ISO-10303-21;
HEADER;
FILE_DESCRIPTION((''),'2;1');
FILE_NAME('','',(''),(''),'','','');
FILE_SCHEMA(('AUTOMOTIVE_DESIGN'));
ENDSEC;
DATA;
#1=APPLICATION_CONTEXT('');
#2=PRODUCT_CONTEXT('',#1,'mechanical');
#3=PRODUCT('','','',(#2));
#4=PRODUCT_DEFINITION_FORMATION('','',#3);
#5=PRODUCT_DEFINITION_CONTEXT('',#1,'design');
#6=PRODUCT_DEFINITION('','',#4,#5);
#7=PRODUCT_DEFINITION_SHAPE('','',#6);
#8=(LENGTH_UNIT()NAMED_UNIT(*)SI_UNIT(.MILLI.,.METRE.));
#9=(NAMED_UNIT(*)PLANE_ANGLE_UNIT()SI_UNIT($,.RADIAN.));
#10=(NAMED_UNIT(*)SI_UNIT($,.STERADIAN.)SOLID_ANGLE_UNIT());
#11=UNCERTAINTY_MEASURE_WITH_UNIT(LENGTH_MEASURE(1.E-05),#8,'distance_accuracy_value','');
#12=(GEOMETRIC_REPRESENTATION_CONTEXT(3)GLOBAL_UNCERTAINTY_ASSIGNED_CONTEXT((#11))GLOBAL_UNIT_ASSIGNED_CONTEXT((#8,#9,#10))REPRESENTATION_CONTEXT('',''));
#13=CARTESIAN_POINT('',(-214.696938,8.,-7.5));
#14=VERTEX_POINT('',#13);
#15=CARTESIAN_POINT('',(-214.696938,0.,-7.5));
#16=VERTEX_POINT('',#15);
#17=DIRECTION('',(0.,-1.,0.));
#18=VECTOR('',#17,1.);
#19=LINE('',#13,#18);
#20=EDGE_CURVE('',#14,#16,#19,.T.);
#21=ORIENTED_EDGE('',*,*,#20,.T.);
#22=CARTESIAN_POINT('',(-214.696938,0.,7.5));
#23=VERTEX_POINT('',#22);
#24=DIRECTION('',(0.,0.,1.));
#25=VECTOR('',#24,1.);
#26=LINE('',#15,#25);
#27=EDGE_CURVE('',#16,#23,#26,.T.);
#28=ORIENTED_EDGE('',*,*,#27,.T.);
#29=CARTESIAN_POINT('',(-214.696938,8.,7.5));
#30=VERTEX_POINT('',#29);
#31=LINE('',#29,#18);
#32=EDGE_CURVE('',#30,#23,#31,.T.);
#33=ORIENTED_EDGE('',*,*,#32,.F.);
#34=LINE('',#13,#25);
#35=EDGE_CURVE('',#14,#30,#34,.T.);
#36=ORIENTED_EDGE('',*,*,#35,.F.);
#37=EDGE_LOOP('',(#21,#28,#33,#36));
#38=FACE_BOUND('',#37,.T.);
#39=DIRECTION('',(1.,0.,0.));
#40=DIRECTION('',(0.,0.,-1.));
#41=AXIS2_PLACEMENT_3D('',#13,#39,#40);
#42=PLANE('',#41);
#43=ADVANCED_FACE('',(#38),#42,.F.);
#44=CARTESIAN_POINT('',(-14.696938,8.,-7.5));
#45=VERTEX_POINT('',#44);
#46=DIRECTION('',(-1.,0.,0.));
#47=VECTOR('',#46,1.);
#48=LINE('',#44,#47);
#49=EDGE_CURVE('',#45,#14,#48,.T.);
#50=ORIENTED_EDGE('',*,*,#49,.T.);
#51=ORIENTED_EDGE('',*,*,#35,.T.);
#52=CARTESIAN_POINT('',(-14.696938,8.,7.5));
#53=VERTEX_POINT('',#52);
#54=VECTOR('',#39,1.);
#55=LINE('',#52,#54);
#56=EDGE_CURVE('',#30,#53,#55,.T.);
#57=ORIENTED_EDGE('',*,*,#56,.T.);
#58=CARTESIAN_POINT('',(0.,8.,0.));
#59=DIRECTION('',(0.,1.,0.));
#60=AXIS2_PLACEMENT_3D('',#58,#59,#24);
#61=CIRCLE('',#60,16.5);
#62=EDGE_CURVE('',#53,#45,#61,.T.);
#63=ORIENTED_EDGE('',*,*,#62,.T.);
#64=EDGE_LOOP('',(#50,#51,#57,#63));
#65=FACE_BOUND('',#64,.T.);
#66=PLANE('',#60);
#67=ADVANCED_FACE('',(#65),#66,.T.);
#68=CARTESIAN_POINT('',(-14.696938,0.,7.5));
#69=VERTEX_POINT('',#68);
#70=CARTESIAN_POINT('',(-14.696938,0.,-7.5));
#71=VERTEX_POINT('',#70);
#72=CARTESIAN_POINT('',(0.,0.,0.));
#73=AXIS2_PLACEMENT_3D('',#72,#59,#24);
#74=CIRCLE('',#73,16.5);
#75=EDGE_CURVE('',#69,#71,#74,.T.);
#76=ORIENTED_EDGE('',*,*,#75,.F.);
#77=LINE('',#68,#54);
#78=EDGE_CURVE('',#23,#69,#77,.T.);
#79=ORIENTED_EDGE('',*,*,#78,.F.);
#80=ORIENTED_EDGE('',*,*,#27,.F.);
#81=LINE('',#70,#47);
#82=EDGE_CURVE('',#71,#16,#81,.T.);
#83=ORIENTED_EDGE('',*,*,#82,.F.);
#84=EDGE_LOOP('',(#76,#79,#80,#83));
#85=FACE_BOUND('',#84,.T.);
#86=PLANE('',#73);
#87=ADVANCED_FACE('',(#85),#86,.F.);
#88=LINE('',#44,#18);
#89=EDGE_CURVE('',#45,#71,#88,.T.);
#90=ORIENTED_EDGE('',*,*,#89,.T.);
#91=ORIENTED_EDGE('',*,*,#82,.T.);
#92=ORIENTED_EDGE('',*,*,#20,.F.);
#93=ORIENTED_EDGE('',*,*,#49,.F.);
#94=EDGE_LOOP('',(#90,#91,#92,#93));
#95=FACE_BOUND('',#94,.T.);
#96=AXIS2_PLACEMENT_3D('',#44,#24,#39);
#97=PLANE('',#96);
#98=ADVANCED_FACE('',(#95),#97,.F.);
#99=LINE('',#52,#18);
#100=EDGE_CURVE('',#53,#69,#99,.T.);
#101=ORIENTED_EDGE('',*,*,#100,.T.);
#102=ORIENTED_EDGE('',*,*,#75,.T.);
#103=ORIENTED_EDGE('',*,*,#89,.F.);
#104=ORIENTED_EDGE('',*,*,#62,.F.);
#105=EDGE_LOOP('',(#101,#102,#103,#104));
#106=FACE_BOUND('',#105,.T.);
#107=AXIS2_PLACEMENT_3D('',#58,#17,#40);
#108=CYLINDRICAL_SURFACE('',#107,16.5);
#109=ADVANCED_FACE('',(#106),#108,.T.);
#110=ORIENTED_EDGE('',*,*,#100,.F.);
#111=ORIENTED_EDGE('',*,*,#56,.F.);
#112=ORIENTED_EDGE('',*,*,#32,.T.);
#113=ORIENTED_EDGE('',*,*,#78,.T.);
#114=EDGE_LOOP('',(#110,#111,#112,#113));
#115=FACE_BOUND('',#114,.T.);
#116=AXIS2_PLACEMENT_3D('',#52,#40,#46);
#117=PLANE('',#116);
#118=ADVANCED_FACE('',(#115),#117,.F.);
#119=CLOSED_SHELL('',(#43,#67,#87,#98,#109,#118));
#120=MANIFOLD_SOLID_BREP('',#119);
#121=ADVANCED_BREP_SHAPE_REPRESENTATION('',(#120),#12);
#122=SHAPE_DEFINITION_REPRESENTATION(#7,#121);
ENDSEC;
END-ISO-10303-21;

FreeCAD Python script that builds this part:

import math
import FreeCAD as App
import Part
import Sketcher

doc = App.newDocument("Part")
body = doc.addObject("PartDesign::Body", "Body")

# Sketch on XZ plane
sketch1 = doc.addObject("Sketcher::SketchObject", "Sketch")
body.addObject(sketch1)
sketch1.AttachmentSupport = (doc.XZ_Plane, [""])
sketch1.MapMode = "FlatFace"
sketch1.addGeometry([
    Part.LineSegment(App.Vector(-15, -8, 0), App.Vector(-215, -8, 0)),
    Part.LineSegment(App.Vector(-215, -8, 0), App.Vector(-215, 8, 0)),
    Part.LineSegment(App.Vector(-215, 8, 0), App.Vector(-15, 8, 0)),
    Part.ArcOfCircle(Part.Circle(App.Vector(0, 0, 0), App.Vector(0, 0, 1), 16), math.radians(-153), math.radians(153)),
], False)
sketch1.addConstraint([
    Sketcher.Constraint("Coincident", 0, 2, 1, 1),
    Sketcher.Constraint("Coincident", 1, 2, 2, 1),
    Sketcher.Constraint("Coincident", 2, 2, 3, 2),
    Sketcher.Constraint("Coincident", 3, 1, 0, 1),
    Sketcher.Constraint("Horizontal", 0),
    Sketcher.Constraint("Vertical", 1),
    Sketcher.Constraint("Horizontal", 2),
    Sketcher.Constraint("Coincident", 3, 3, -1, 1),
    Sketcher.Constraint("Vertical", 2, 2, 3, 1),
    Sketcher.Constraint("Radius", 3, 16.5),
    Sketcher.Constraint("DistanceX", 0, 2, 0, 1, 200.0),
    Sketcher.Constraint("DistanceY", 1, 1, 1, 2, 15.0),
])
pad1 = doc.addObject("PartDesign::Pad", "Pad")
body.addObject(pad1)
pad1.Profile = sketch1
pad1.Length = 8
pad1.Reversed = True

doc.recompute()
